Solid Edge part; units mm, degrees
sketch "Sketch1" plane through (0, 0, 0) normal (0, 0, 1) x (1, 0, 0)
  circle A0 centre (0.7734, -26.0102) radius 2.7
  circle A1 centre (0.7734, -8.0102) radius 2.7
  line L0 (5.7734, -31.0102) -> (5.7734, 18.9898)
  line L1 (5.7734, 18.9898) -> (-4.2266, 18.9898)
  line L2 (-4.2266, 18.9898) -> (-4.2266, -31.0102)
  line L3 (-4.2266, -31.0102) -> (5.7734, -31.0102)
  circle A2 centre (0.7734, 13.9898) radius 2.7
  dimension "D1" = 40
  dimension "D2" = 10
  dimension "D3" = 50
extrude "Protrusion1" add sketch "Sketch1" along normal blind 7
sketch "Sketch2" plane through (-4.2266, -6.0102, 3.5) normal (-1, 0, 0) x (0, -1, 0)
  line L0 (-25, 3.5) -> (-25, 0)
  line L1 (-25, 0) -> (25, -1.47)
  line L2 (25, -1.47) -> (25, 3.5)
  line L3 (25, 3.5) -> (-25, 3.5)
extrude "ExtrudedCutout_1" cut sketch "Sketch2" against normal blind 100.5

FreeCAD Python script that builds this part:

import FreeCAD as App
import Part
import Sketcher
Q = App.Units.Quantity


def add_polygon(sketch, points):
    """Adds a closed chain of lines whose ends are joined by coincident constraints."""
    first, n = sketch.GeometryCount, len(points)
    for a, b in zip(points, points[1:] + points[:1]):
        sketch.addGeometry(Part.LineSegment(App.Vector(*a, 0), App.Vector(*b, 0)), False)
    for i in range(n):
        sketch.addConstraint(Sketcher.Constraint("Coincident", first + i, 2, first + (i + 1) % n, 1))

doc = App.newDocument("Part")
body = doc.addObject("PartDesign::Body", "Body")

# Sketch on XY plane
sketch1 = doc.addObject("Sketcher::SketchObject", "Sketch")
body.addObject(sketch1)
sketch1.AttachmentSupport = (doc.XY_Plane, [""])
sketch1.MapMode = "FlatFace"
add_polygon(sketch1, [(-4.2, -31), (5.8, -31), (5.8, 19), (-4.2, 19)])  # lines 0-3
sketch1.addGeometry(Part.Circle(App.Vector(0.8, -26, 0), App.Vector(0, 0, 1), 2.7), False)  # 4
sketch1.addGeometry(Part.Circle(App.Vector(0.8, -8, 0), App.Vector(0, 0, 1), 2.7), False)  # 5
sketch1.addGeometry(Part.Circle(App.Vector(0.8, 14, 0), App.Vector(0, 0, 1), 2.7), False)  # 6
sketch1.addConstraint(Sketcher.Constraint("Horizontal", 0))
sketch1.addConstraint(Sketcher.Constraint("Vertical", 1))
sketch1.addConstraint(Sketcher.Constraint("Horizontal", 2))
sketch1.addConstraint(Sketcher.Constraint("Vertical", 3))
sketch1.addConstraint(Sketcher.Constraint("Equal", 4, 5))
sketch1.addConstraint(Sketcher.Constraint("Equal", 5, 6))
sketch1.addConstraint(Sketcher.Constraint("Vertical", 4, 3, 5, 3))
sketch1.addConstraint(Sketcher.Constraint("Vertical", 5, 3, 6, 3))
sketch1.addConstraint(Sketcher.Constraint("Diameter", 4, Q("5.4 mm")))
sketch1.addConstraint(Sketcher.Constraint("DistanceX", 0, 1, 0, 2, Q("10 mm")))
sketch1.addConstraint(Sketcher.Constraint("DistanceY", 1, 1, 1, 2, Q("50 mm")))
sketch1.addConstraint(Sketcher.Constraint("DistanceY", 4, 3, 5, 3, Q("18 mm")))
sketch1.addConstraint(Sketcher.Constraint("DistanceY", 5, 3, 6, 3, Q("22 mm")))
sketch1.addConstraint(Sketcher.Constraint("DistanceX", 4, 3, 0, 2, Q("5 mm")))
sketch1.addConstraint(Sketcher.Constraint("DistanceY", 0, 2, 4, 3, Q("5 mm")))
sketch1.addConstraint(Sketcher.Constraint("DistanceX", -1, 1, 4, 3, Q("0.7734 mm")))
sketch1.addConstraint(Sketcher.Constraint("DistanceY", 4, 3, -1, 1, Q("26.0102 mm")))
pad1 = doc.addObject("PartDesign::Pad", "Pad")
body.addObject(pad1)
pad1.Profile = sketch1
pad1.Length = 7

# Sketch on YZ plane
sketch2 = doc.addObject("Sketcher::SketchObject", "Sketch001")
body.addObject(sketch2)
sketch2.AttachmentSupport = (doc.YZ_Plane, [""])
sketch2.MapMode = "FlatFace"
sketch2.AttachmentOffset = App.Placement(App.Vector(0, 0, -4.2266), App.Rotation())
add_polygon(sketch2, [(-31, 7), (19, 7), (19, 3.5), (-31, 2)])  # lines 0-3
sketch2.addConstraint(Sketcher.Constraint("Horizontal", 0))
sketch2.addConstraint(Sketcher.Constraint("Vertical", 1))
sketch2.addConstraint(Sketcher.Constraint("Vertical", 3))
sketch2.addConstraint(Sketcher.Constraint("DistanceX", 0, 1, 0, 2, Q("50 mm")))
sketch2.addConstraint(Sketcher.Constraint("DistanceY", 1, 2, 1, 1, Q("3.5 mm")))
sketch2.addConstraint(Sketcher.Constraint("DistanceY", -1, 1, 0, 2, Q("7 mm")))
sketch2.addConstraint(Sketcher.Constraint("DistanceY", 3, 1, 3, 2, Q("4.97 mm")))
sketch2.addConstraint(Sketcher.Constraint("DistanceX", -1, 1, 0, 2, Q("18.9898 mm")))
pocket1 = doc.addObject("PartDesign::Pocket", "Pocket")
body.addObject(pocket1)
pocket1.Profile = sketch2
pocket1.Length = 100.5
pocket1.Reversed = True

doc.recompute()
